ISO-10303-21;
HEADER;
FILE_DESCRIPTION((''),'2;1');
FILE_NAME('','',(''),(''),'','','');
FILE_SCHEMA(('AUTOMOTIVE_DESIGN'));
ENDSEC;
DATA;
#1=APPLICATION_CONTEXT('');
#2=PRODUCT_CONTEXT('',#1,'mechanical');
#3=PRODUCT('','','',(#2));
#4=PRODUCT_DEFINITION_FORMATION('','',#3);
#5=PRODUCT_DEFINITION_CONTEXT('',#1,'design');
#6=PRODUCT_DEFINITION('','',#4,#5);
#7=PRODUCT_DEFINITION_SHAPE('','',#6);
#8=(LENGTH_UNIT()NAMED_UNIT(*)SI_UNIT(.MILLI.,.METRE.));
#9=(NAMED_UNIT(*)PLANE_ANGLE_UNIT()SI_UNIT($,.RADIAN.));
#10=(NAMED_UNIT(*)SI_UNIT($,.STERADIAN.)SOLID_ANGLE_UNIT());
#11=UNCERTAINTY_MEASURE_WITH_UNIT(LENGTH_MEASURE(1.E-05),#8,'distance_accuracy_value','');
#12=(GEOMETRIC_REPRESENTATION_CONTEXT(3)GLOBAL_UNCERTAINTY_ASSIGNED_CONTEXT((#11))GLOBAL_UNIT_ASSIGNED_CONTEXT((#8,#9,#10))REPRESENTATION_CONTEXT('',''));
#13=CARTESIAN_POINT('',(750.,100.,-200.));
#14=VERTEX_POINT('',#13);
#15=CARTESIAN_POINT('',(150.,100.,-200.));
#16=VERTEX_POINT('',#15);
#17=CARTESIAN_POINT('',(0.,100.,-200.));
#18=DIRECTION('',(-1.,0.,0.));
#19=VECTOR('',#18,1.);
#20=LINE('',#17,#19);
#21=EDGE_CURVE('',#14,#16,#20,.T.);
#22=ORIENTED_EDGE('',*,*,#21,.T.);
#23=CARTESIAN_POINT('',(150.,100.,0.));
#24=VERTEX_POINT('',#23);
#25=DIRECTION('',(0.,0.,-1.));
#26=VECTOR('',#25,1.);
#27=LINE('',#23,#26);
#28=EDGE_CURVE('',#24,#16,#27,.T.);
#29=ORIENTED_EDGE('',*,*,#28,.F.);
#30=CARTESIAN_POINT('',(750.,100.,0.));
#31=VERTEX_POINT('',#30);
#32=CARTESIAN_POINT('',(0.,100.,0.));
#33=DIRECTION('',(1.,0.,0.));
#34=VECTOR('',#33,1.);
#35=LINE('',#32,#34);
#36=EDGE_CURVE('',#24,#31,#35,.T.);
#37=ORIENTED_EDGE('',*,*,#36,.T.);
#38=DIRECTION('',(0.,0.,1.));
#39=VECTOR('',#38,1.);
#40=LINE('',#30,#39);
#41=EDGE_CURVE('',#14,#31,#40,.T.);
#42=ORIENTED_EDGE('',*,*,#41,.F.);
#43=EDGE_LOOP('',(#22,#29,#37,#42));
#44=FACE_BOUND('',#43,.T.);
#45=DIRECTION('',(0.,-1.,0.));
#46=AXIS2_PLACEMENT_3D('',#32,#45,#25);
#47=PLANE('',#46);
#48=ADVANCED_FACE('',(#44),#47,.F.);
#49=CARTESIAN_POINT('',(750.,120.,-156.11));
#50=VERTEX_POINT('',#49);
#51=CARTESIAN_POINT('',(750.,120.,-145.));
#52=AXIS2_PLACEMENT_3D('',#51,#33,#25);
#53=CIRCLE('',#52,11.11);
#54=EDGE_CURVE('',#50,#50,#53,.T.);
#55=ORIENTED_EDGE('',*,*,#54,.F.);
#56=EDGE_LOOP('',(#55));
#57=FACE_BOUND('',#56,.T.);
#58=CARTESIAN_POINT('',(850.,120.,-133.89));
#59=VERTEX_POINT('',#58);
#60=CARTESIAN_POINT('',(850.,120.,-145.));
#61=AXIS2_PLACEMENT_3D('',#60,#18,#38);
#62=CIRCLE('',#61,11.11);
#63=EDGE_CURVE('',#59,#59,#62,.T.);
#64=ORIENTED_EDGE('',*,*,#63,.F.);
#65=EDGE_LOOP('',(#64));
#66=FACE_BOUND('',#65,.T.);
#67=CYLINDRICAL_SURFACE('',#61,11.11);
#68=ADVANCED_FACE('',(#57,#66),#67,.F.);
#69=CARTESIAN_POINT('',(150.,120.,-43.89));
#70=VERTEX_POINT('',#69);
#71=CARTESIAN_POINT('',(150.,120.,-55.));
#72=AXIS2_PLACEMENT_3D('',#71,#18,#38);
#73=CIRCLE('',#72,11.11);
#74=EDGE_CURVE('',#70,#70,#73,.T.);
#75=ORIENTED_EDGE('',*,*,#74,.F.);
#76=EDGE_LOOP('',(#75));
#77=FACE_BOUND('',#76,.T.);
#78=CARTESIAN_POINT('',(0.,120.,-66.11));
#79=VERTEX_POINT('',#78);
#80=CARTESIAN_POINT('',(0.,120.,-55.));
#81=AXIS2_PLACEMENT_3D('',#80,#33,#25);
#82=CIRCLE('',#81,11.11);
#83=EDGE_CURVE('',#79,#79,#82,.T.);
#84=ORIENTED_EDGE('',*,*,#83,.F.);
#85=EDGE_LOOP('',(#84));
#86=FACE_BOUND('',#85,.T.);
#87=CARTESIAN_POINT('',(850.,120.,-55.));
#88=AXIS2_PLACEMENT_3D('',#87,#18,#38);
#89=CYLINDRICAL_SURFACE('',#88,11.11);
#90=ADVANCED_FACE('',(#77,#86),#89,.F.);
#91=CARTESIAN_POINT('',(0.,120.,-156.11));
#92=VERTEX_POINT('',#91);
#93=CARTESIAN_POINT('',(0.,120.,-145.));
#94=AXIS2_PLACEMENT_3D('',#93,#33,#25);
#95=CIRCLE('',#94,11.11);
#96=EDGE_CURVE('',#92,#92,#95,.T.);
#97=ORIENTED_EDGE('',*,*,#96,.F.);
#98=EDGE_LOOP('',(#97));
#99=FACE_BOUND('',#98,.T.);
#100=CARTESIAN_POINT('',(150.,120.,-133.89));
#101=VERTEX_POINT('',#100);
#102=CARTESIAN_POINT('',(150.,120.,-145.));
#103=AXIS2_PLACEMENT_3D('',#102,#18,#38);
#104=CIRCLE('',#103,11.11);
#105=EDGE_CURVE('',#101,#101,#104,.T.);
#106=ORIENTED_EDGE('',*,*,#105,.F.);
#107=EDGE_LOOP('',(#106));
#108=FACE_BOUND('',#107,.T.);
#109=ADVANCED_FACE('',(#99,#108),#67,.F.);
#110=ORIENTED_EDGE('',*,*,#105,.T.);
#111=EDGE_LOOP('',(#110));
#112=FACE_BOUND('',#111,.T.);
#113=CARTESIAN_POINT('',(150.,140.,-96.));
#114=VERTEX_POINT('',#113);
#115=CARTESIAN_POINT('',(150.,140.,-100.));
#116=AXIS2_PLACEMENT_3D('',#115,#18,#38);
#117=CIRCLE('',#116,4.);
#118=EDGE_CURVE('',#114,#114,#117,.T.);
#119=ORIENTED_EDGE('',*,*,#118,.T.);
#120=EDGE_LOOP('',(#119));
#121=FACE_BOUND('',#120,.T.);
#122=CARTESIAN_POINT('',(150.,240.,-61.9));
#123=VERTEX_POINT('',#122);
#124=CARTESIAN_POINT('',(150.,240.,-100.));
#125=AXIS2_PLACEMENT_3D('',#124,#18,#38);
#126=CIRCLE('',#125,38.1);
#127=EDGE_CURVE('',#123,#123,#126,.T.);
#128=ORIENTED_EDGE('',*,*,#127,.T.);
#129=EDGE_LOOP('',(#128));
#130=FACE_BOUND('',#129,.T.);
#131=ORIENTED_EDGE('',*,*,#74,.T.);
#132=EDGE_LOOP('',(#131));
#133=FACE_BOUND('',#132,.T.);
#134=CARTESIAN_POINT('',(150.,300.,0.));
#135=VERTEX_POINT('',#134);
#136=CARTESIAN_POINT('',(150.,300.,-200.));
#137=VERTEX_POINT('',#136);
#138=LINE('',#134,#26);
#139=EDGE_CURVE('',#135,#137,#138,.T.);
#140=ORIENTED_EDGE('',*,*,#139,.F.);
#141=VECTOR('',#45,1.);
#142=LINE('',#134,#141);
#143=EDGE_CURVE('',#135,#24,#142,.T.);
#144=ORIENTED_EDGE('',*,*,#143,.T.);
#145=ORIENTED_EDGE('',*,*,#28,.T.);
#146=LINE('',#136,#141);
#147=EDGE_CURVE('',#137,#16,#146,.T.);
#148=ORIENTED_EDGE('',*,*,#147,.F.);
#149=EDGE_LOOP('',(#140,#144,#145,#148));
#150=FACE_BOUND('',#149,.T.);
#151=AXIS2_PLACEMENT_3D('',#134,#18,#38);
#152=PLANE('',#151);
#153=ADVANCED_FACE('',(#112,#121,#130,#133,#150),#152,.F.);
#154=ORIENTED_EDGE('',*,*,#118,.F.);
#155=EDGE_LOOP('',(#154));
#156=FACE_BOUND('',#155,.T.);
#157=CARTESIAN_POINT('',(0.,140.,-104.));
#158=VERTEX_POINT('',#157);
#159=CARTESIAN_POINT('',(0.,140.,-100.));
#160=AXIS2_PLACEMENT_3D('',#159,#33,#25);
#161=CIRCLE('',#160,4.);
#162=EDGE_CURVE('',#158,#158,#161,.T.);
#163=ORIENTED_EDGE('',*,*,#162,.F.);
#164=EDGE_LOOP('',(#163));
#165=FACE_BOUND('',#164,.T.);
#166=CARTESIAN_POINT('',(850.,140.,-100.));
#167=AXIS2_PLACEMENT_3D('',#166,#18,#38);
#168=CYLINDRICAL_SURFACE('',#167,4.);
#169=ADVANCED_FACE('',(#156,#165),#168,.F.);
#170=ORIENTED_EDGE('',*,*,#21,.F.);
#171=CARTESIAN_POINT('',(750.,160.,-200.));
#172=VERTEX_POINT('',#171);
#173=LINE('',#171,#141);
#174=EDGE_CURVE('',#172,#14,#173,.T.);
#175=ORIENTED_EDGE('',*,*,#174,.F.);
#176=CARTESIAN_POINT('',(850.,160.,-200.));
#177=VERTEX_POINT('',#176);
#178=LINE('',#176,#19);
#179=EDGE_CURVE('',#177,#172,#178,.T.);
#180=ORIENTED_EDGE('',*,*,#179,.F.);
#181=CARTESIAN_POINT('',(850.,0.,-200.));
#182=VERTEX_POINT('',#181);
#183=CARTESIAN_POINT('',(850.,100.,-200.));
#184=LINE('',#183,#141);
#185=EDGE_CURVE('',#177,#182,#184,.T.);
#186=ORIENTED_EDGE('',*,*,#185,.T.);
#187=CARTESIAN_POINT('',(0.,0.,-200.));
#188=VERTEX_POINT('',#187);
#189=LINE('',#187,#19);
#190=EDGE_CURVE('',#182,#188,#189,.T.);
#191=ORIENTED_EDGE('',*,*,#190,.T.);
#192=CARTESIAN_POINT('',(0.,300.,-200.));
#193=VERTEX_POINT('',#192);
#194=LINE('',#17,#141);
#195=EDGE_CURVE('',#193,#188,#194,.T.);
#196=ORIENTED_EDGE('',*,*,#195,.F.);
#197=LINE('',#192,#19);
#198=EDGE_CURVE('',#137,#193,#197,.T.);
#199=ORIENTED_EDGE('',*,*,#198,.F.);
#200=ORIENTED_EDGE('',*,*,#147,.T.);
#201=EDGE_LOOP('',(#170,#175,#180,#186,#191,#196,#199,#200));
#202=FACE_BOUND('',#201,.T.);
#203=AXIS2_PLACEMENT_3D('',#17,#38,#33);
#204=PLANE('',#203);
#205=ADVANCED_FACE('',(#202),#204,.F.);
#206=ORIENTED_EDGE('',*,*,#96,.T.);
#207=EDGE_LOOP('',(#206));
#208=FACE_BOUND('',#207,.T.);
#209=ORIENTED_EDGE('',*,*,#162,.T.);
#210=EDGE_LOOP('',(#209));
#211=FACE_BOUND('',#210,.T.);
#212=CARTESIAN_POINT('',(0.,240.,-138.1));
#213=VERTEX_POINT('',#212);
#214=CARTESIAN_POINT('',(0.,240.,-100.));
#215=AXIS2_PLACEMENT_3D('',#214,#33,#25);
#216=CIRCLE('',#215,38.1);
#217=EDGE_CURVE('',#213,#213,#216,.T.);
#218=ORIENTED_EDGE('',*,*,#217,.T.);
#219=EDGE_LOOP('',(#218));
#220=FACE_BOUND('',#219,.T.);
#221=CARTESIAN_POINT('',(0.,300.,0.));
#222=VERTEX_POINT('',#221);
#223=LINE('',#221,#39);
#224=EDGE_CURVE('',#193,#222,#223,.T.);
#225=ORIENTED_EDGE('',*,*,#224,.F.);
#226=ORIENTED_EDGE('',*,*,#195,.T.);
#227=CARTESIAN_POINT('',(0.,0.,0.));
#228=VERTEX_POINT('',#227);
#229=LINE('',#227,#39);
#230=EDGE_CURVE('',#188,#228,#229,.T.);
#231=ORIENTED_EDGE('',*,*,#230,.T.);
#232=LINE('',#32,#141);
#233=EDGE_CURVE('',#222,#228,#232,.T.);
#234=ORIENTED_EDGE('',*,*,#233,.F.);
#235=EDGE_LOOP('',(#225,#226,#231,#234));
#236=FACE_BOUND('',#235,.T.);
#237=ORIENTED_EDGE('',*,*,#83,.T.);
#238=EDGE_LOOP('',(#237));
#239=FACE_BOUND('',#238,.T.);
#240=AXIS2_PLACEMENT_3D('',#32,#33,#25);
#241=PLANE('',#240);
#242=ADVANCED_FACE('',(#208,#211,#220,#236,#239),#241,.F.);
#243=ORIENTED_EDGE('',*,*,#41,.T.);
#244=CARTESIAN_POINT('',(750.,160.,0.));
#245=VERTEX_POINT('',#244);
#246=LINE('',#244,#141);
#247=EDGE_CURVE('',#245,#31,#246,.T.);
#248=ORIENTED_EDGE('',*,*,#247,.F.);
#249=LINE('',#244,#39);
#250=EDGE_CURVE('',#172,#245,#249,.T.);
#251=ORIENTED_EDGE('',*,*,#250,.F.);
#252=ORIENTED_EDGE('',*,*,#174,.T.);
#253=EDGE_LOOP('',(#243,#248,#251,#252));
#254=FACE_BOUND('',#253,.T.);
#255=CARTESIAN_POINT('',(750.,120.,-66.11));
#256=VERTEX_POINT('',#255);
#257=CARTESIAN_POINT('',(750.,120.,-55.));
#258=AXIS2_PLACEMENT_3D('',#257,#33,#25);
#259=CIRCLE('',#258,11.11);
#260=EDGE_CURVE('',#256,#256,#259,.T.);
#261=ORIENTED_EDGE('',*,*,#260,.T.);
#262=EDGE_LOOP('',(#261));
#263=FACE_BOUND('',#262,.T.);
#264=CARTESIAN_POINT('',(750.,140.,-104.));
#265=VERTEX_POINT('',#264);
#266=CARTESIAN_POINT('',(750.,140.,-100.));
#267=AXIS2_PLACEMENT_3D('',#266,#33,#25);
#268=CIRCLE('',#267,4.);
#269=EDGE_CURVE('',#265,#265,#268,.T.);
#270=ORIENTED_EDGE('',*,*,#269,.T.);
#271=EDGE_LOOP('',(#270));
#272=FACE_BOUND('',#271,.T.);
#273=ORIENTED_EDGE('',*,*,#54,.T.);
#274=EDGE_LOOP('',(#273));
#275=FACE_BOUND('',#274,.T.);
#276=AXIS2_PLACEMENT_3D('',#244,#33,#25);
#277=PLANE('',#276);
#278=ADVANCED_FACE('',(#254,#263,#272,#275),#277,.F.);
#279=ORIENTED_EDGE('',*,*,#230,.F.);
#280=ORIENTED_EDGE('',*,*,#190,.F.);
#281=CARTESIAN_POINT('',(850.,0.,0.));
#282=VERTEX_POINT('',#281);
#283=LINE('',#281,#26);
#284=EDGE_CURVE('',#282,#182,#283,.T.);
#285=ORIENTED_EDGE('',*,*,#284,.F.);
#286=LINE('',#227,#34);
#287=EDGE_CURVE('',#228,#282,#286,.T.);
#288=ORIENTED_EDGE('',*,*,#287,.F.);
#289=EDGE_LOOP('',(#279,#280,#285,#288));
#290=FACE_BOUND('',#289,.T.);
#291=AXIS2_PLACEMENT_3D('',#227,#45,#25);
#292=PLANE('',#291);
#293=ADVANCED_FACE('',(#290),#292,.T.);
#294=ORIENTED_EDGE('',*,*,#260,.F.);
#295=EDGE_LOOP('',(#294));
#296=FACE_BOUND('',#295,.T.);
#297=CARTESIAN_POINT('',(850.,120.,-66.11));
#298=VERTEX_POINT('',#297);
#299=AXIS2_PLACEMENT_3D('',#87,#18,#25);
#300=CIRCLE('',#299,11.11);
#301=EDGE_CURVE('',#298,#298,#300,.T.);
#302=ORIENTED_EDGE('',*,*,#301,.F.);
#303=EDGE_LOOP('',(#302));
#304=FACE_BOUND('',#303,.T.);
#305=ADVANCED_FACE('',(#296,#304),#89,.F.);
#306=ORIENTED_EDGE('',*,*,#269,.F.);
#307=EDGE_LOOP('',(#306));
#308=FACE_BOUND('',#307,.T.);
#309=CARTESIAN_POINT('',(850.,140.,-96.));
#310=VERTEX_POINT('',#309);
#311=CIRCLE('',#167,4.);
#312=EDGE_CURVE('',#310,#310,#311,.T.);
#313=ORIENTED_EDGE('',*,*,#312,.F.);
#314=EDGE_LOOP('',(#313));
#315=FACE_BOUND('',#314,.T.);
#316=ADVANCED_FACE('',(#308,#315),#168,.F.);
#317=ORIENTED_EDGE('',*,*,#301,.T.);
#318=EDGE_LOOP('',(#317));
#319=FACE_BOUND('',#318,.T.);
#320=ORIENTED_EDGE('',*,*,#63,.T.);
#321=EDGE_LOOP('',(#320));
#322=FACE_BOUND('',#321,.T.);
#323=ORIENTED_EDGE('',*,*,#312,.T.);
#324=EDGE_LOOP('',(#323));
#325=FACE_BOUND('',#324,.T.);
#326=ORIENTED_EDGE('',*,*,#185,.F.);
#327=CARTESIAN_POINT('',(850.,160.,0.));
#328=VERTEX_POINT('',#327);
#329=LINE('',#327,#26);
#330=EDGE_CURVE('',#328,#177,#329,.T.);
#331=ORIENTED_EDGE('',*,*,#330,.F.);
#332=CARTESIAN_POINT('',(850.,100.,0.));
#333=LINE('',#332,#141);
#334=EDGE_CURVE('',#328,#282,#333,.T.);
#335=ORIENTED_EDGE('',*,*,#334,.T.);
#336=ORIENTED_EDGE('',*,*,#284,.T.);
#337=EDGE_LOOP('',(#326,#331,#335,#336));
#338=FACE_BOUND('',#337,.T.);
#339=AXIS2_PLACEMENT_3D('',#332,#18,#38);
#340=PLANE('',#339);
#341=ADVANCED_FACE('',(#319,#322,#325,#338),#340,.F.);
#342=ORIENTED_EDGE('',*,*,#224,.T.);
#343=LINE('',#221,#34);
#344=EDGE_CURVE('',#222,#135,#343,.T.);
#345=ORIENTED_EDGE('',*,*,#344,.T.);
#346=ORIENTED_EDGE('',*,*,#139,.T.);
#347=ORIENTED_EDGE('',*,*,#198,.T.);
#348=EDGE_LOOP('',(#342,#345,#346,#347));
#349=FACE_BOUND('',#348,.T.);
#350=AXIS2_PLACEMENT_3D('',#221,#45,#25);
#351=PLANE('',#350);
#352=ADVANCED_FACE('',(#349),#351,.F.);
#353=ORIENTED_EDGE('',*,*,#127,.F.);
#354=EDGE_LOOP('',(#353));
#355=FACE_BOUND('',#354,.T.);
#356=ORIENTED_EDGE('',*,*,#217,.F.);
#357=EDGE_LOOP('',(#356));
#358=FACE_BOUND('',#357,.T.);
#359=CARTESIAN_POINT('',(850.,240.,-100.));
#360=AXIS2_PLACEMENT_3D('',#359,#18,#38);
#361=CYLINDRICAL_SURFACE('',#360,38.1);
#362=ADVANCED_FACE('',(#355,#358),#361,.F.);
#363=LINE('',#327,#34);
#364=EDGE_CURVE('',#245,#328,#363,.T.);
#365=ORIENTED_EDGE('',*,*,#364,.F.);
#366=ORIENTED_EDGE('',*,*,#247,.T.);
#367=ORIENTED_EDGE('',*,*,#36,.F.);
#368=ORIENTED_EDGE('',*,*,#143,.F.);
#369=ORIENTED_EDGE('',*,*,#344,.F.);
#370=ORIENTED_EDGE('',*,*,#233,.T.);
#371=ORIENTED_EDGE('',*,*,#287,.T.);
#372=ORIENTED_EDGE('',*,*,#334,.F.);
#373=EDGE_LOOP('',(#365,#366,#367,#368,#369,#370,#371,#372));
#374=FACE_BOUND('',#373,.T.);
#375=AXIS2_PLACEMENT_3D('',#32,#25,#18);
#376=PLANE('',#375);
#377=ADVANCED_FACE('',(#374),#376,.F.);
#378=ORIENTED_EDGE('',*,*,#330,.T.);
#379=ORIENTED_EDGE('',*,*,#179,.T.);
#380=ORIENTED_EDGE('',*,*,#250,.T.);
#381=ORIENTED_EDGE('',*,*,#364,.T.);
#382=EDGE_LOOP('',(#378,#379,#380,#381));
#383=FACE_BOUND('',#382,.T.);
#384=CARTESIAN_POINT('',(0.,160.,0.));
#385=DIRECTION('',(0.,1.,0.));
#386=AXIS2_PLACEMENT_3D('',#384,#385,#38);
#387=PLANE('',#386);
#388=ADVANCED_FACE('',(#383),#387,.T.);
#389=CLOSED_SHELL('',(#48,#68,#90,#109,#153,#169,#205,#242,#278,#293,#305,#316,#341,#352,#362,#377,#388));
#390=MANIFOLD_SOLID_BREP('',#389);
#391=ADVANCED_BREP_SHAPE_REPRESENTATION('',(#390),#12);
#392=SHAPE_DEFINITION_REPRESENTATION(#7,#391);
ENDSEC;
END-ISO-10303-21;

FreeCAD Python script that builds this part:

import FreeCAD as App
import Part
import Sketcher
from FreeCAD import Vector


def add_polygon(sketch, points):
    """Adds a closed chain of lines whose ends are joined by coincident constraints."""
    first, n = sketch.GeometryCount, len(points)
    for a, b in zip(points, points[1:] + points[:1]):
        sketch.addGeometry(Part.LineSegment(App.Vector(*a, 0), App.Vector(*b, 0)), False)
    for i in range(n):
        sketch.addConstraint(Sketcher.Constraint("Coincident", first + i, 2, first + (i + 1) % n, 1))

doc = App.newDocument("Part")
body = doc.addObject("PartDesign::Body", "Body")

sketch1 = doc.addObject("Sketcher::SketchObject", "Sketch")
body.addObject(sketch1)
sketch1.AttachmentSupport = (doc.XZ_Plane, [""])
sketch1.MapMode = "FlatFace"
add_polygon(sketch1, [(0, -200), (0, 0), (850, 0), (850, -200)])
sketch1.addConstraint([
    Sketcher.Constraint("Vertical", 0),
    Sketcher.Constraint("Horizontal", 1),
    Sketcher.Constraint("Vertical", 2),
    Sketcher.Constraint("Horizontal", 3),
    Sketcher.Constraint("Coincident", 0, 2, -1, 1),
    Sketcher.Constraint("DistanceX", 1, 1, 1, 2, 850.0),
    Sketcher.Constraint("DistanceY", 0, 1, 0, 2, 200.0),
])
pad1 = doc.addObject("PartDesign::Pad", "Pad")
body.addObject(pad1)
pad1.Profile = sketch1
pad1.Length = 100
pad1.Reversed = True

sketch2 = doc.addObject("Sketcher::SketchObject", "Sketch001")
body.addObject(sketch2)
sketch2.AttachmentSupport = (doc.XZ_Plane, [""])
sketch2.MapMode = "FlatFace"
sketch2.AttachmentOffset = App.Placement(Vector(0, 0, -100), App.Rotation())
add_polygon(sketch2, [(0, -200), (0, 0), (150, 0), (150, -200)])
sketch2.addConstraint([
    Sketcher.Constraint("Vertical", 0),
    Sketcher.Constraint("Horizontal", 1),
    Sketcher.Constraint("Vertical", 2),
    Sketcher.Constraint("Horizontal", 3),
    Sketcher.Constraint("Coincident", 0, 2, -1, 1),
    Sketcher.Constraint("DistanceX", 1, 1, 1, 2, 150.0),
    Sketcher.Constraint("DistanceY", 0, 1, 0, 2, 200.0),
])
pad2 = doc.addObject("PartDesign::Pad", "Pad001")
body.addObject(pad2)
pad2.Profile = sketch2
pad2.Length = 200
pad2.Reversed = True

sketch3 = doc.addObject("Sketcher::SketchObject", "Sketch002")
body.addObject(sketch3)
sketch3.AttachmentSupport = (doc.XZ_Plane, [""])
sketch3.MapMode = "FlatFace"
sketch3.AttachmentOffset = App.Placement(Vector(0, 0, -100), App.Rotation())
add_polygon(sketch3, [(750, -200), (750, 0), (850, 0), (850, -200)])
sketch3.addConstraint([
    Sketcher.Constraint("Vertical", 0),
    Sketcher.Constraint("Horizontal", 1),
    Sketcher.Constraint("Vertical", 2),
    Sketcher.Constraint("Horizontal", 3),
    Sketcher.Constraint("PointOnObject", 0, 2, -1),
    Sketcher.Constraint("DistanceX", 1, 1, 1, 2, 100.0),
    Sketcher.Constraint("DistanceY", 0, 1, 0, 2, 200.0),
    Sketcher.Constraint("DistanceX", -1, 1, 0, 2, 750.0),
])
pad3 = doc.addObject("PartDesign::Pad", "Pad002")
body.addObject(pad3)
pad3.Profile = sketch3
pad3.Length = 60
pad3.Reversed = True

sketch4 = doc.addObject("Sketcher::SketchObject", "Sketch003")
body.addObject(sketch4)
sketch4.AttachmentSupport = (doc.YZ_Plane, [""])
sketch4.MapMode = "FlatFace"
sketch4.addGeometry([
    Part.Circle(Vector(240, -100, 0), Vector(0, 0, 1), 38.1),
    Part.Circle(Vector(120, -145, 0), Vector(0, 0, 1), 11.1),
    Part.Circle(Vector(120, -55, 0), Vector(0, 0, 1), 11.1),
    Part.Circle(Vector(140, -100, 0), Vector(0, 0, 1), 4),
], False)
sketch4.addConstraint([
    Sketcher.Constraint("Equal", 1, 2),
    Sketcher.Constraint("Horizontal", 0, 3, 3, 3),
    Sketcher.Constraint("Vertical", 1, 3, 2, 3),
    Sketcher.Constraint("Diameter", 3, 8.0),
    Sketcher.Constraint("Diameter", 0, 76.2),
    Sketcher.Constraint("Diameter", 1, 22.22),
    Sketcher.Constraint("DistanceX", -1, 1, 0, 3, 240.0),
    Sketcher.Constraint("DistanceY", 0, 3, -1, 1, 100.0),
    Sketcher.Constraint("DistanceX", -1, 1, 1, 3, 120.0),
    Sketcher.Constraint("DistanceY", 1, 3, -1, 1, 145.0),
    Sketcher.Constraint("DistanceY", 2, 3, -1, 1, 55.0),
    Sketcher.Constraint("DistanceX", -1, 1, 3, 3, 140.0),
])
pocket1 = doc.addObject("PartDesign::Pocket", "Pocket")
body.addObject(pocket1)
pocket1.Profile = sketch4
pocket1.Type = "ThroughAll"
pocket1.Midplane = True

doc.recompute()
